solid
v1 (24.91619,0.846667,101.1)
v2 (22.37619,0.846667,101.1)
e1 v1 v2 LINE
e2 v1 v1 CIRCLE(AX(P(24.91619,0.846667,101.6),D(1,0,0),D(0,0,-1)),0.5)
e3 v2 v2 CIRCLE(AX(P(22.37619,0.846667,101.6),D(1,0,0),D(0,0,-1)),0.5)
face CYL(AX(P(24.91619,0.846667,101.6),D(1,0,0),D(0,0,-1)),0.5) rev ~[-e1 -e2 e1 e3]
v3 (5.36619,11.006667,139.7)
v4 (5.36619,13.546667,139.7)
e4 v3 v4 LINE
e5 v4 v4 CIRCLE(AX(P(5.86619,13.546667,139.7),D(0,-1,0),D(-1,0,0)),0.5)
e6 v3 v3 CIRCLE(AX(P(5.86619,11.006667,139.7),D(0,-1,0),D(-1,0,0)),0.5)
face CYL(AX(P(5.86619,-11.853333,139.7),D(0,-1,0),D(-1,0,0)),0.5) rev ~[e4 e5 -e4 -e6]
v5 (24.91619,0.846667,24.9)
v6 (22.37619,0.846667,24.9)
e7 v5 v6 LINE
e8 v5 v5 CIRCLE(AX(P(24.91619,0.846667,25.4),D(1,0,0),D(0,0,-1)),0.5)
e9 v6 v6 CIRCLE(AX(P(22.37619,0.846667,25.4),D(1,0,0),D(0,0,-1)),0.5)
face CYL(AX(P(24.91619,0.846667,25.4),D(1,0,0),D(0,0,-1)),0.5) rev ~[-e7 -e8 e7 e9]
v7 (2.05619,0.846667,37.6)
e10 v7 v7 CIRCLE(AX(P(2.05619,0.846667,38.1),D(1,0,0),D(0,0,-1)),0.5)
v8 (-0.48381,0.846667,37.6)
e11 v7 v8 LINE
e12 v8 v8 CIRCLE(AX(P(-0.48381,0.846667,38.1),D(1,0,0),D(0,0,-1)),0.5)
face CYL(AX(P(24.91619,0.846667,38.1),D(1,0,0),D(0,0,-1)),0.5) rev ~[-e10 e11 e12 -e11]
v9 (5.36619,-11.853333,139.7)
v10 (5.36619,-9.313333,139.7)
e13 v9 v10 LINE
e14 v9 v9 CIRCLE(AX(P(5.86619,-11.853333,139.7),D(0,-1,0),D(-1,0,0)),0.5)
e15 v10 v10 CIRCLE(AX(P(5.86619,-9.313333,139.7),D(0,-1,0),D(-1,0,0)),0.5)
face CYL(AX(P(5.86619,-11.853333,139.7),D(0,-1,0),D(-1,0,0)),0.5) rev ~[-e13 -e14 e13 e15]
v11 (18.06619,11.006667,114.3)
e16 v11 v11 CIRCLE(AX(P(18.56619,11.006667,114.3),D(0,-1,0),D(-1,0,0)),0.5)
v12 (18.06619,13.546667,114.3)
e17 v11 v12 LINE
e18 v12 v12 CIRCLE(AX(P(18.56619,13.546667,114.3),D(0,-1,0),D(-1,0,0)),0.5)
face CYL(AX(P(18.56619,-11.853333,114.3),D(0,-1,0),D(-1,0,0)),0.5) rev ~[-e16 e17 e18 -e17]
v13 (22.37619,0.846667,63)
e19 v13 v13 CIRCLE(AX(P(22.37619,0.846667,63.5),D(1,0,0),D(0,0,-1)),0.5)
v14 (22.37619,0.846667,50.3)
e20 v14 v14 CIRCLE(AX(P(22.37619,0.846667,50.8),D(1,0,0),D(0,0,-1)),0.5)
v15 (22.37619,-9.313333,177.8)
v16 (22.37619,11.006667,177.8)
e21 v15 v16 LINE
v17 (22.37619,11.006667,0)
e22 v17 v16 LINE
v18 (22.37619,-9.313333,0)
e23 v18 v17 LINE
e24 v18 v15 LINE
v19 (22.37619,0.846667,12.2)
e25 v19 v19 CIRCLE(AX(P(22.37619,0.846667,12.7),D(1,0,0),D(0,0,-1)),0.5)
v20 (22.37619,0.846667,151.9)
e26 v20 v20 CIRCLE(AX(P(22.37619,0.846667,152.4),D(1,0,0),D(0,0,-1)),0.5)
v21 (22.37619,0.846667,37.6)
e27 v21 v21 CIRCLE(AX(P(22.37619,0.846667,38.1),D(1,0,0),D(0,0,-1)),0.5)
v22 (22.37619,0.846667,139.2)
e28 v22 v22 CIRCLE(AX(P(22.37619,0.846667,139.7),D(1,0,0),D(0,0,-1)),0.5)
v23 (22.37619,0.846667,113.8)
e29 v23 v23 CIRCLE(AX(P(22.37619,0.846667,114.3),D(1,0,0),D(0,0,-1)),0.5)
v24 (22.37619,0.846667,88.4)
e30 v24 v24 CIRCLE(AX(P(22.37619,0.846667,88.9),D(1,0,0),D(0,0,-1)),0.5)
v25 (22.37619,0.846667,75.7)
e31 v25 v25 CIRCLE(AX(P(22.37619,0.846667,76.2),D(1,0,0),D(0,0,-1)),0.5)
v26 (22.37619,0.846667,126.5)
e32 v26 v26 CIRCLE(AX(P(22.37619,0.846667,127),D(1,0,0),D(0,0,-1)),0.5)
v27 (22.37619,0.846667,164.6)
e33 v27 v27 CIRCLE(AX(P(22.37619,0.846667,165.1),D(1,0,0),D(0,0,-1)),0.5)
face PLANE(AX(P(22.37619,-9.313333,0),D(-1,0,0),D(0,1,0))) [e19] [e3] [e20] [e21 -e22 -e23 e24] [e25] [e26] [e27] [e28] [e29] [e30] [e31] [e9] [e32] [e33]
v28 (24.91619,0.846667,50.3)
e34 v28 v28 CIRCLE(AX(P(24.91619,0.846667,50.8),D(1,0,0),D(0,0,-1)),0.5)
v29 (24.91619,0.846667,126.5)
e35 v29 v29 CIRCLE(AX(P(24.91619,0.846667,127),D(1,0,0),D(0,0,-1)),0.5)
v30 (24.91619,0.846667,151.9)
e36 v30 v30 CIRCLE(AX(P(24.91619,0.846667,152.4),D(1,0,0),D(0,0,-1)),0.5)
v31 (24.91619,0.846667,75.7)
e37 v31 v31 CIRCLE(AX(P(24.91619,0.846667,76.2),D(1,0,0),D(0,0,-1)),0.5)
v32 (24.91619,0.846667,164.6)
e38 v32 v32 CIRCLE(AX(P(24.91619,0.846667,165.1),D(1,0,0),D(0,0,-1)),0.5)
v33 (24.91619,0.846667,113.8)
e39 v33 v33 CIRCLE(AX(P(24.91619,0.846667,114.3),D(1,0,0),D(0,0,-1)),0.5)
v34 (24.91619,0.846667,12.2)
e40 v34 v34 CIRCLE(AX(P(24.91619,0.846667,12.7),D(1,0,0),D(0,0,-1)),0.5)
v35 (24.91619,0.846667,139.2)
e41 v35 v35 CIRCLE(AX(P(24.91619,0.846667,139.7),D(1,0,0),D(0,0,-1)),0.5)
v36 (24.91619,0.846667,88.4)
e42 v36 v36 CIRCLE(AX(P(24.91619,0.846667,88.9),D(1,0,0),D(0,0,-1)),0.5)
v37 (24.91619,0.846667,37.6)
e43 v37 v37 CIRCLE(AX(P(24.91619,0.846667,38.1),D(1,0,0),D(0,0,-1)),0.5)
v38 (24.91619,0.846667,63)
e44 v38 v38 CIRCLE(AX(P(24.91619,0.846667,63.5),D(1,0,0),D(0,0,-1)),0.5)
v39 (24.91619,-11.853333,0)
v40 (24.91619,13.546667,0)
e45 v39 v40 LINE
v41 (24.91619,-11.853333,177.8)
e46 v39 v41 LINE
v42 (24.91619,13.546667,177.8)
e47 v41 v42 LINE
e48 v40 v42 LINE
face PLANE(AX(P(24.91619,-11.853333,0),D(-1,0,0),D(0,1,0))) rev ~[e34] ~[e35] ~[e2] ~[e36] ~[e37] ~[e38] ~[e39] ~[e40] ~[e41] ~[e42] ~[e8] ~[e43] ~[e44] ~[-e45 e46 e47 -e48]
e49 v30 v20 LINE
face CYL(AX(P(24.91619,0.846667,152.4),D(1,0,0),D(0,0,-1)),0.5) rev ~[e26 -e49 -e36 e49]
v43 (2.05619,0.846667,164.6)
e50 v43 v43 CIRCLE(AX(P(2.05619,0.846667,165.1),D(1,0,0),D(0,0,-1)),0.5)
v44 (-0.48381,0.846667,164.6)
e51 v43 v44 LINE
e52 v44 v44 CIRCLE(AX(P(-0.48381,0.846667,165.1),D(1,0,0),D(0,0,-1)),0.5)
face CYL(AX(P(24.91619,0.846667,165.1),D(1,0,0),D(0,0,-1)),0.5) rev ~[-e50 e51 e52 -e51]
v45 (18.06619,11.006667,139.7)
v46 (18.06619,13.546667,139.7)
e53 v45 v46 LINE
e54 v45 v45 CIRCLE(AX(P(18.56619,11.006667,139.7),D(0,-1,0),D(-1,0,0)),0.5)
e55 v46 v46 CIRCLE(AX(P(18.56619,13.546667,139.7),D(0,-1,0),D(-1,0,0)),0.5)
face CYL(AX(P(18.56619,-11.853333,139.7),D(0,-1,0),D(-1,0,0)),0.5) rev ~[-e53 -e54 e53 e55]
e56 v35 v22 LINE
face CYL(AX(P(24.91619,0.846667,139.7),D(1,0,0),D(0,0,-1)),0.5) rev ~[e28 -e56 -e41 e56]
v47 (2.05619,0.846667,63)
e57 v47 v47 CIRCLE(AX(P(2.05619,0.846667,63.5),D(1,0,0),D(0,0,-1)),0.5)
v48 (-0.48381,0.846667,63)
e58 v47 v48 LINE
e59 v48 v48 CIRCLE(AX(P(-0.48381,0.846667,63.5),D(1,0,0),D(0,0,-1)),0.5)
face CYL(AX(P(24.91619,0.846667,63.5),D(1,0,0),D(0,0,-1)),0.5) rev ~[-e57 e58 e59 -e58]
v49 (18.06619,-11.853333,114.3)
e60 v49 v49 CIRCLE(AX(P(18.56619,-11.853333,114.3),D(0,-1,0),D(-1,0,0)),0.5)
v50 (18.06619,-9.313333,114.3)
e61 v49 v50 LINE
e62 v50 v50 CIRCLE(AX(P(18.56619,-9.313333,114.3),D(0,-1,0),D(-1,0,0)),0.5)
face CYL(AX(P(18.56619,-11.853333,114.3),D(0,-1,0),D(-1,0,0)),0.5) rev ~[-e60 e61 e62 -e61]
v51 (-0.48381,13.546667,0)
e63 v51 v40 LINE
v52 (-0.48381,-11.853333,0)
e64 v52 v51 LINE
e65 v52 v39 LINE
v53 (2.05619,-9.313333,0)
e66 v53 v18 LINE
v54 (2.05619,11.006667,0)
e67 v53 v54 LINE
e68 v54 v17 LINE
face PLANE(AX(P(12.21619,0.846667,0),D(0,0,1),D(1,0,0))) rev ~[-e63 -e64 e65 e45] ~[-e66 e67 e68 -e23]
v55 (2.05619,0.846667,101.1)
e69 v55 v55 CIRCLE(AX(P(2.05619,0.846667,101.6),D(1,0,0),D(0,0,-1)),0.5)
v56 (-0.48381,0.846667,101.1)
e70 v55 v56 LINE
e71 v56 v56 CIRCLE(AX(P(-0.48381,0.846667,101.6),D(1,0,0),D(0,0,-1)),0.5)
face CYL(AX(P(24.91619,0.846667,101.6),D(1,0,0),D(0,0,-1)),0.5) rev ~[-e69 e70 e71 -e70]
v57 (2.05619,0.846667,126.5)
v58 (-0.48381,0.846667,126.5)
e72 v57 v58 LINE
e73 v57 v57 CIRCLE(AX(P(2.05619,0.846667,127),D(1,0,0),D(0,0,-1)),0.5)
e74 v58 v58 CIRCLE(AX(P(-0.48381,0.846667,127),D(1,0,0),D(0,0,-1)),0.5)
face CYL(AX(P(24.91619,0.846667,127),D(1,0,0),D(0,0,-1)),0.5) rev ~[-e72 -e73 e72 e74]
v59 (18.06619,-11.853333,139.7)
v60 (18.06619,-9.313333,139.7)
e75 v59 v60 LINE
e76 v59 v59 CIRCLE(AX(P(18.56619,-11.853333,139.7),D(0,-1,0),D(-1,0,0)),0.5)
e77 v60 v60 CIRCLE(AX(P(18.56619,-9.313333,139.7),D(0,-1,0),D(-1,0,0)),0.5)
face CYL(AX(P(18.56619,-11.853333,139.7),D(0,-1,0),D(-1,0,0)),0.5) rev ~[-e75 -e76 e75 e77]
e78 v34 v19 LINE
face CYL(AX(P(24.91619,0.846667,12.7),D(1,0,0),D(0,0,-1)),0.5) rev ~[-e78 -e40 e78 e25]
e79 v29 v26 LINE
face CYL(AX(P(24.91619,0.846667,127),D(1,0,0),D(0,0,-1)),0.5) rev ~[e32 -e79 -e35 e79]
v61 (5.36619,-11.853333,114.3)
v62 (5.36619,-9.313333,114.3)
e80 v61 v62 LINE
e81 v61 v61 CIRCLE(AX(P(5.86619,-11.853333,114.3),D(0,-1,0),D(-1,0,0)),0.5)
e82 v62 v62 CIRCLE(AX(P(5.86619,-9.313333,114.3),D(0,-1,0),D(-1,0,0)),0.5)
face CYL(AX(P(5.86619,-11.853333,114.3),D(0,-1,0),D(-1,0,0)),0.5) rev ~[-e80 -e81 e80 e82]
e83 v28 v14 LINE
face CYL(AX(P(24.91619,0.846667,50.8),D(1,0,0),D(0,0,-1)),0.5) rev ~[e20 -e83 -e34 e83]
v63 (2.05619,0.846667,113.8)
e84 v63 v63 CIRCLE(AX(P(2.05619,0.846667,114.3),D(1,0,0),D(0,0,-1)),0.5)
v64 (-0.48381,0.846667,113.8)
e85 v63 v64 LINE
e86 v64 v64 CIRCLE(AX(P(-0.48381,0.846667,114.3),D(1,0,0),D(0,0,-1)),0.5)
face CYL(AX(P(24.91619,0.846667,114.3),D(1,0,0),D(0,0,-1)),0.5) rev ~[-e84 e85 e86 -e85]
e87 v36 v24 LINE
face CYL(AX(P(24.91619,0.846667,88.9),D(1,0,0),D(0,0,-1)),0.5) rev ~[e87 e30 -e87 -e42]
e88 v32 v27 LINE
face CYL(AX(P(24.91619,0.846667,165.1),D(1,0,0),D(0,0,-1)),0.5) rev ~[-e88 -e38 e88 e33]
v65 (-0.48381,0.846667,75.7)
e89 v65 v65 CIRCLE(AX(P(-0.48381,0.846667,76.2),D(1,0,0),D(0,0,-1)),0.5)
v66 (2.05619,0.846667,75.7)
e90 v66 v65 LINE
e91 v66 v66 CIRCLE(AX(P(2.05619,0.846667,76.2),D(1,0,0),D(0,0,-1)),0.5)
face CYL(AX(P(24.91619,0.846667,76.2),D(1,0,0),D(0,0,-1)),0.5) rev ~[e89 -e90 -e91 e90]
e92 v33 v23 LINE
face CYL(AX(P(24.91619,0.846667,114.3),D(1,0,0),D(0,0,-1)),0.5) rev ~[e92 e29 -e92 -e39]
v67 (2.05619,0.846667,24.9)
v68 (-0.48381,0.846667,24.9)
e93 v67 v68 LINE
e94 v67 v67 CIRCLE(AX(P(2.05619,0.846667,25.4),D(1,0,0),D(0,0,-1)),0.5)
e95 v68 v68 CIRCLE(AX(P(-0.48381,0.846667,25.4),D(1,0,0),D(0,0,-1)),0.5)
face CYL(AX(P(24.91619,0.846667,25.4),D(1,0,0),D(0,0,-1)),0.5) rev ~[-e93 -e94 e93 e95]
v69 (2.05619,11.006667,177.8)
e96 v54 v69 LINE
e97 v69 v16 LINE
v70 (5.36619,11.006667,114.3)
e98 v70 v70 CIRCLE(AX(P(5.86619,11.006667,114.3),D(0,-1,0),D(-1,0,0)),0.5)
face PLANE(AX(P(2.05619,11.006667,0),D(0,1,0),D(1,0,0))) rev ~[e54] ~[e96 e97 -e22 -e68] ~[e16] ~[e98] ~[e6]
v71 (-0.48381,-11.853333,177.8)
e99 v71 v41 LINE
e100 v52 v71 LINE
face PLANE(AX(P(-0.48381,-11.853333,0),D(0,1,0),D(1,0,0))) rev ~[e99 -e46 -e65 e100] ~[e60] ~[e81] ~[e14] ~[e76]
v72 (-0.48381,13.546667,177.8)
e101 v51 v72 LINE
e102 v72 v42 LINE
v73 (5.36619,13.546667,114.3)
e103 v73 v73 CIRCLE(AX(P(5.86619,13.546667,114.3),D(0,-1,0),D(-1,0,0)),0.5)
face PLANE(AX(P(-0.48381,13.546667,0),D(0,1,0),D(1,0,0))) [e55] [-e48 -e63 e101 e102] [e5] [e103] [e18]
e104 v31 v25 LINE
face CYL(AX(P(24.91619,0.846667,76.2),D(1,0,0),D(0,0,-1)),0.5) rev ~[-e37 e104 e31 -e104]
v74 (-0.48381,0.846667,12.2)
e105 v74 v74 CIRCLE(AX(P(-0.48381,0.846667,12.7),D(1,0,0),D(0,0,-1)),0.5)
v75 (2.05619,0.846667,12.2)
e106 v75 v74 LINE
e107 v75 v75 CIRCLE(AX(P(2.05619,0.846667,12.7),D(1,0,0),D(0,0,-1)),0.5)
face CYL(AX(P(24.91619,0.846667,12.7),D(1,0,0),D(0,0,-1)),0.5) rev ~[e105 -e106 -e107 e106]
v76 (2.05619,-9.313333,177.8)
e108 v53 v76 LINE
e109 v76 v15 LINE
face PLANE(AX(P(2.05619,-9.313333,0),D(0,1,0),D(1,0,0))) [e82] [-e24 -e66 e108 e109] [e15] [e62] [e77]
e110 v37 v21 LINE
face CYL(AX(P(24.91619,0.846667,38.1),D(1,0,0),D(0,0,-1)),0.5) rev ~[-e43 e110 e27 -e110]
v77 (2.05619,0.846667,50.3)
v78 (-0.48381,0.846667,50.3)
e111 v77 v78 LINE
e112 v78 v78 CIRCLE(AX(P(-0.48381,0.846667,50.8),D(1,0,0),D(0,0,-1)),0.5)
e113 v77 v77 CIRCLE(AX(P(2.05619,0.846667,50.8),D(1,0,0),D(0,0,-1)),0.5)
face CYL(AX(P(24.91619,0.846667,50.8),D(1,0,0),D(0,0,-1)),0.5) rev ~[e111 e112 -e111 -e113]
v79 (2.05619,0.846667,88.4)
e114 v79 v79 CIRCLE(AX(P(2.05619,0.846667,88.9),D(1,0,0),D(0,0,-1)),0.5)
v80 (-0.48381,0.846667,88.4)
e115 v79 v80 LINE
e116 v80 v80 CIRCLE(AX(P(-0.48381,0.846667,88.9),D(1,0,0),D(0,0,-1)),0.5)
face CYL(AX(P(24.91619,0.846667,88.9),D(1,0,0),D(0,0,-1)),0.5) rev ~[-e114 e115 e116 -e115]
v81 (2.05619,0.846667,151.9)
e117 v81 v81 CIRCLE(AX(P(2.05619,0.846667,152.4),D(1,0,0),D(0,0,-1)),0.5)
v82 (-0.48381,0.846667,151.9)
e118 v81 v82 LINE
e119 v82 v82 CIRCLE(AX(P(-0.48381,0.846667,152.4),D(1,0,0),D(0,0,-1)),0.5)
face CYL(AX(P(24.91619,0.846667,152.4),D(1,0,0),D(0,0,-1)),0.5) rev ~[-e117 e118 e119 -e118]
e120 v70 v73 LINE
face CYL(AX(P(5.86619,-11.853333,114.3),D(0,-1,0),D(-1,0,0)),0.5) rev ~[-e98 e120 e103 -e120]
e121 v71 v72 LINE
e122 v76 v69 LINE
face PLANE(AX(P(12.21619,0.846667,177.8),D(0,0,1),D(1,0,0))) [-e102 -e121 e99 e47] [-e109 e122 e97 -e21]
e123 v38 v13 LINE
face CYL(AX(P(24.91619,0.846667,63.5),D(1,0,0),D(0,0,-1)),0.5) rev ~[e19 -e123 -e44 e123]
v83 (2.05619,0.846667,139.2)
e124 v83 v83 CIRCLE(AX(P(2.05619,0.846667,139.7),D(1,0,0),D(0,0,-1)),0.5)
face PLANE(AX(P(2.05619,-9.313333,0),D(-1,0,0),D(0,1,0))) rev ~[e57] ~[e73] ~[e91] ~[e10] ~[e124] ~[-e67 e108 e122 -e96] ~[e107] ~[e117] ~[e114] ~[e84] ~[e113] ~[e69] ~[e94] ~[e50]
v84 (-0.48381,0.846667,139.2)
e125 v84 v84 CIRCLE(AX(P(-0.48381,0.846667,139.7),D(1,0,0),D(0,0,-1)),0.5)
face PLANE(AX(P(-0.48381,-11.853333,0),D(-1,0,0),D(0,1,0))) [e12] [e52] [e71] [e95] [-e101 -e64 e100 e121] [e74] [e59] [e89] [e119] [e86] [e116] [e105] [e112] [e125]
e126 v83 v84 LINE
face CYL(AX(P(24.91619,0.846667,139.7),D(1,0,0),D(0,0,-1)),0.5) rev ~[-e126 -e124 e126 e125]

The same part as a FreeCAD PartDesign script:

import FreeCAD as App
import Part
import Sketcher
Q = App.Units.Quantity


def add_polygon(sketch, points):
    """Adds a closed chain of lines whose ends are joined by coincident constraints."""
    first, n = sketch.GeometryCount, len(points)
    for a, b in zip(points, points[1:] + points[:1]):
        sketch.addGeometry(Part.LineSegment(App.Vector(*a, 0), App.Vector(*b, 0)), False)
    for i in range(n):
        sketch.addConstraint(Sketcher.Constraint("Coincident", first + i, 2, first + (i + 1) % n, 1))

doc = App.newDocument("Part")
params = doc.addObject("Spreadsheet::Sheet", "Params")
for row, (alias, value) in enumerate([
    ("sketch1_width", "1 in"),
    ("sketch1_width2", "0.8 in"),
    ("pad1_length", "7 in"),
], start=1):
    params.set(f"A{row}", alias)
    params.set(f"B{row}", "=" + value)
    params.setAlias(f"B{row}", alias)

body = doc.addObject("PartDesign::Body", "Body")

# Sketch on XY plane
sketch1 = body.newObject("Sketcher::SketchObject", "Sketch")
sketch1.AttachmentSupport = (doc.getObject("XY_Plane"), [""])
sketch1.MapMode = "FlatFace"
add_polygon(sketch1, [(-0.48381, 13.546667), (-0.48381, -11.853333), (24.91619, -11.853333), (24.91619, 13.546667)])  # lines 0-3
add_polygon(sketch1, [(22.37619, -9.313333), (2.05619, -9.313333), (2.05619, 11.006667), (22.37619, 11.006667)])  # lines 4-7
sketch1.addConstraint([
    Sketcher.Constraint("Vertical", 0),
    Sketcher.Constraint("Horizontal", 1),
    Sketcher.Constraint("Vertical", 2),
    Sketcher.Constraint("Horizontal", 3),
    Sketcher.Constraint("Horizontal", 4),
    Sketcher.Constraint("Vertical", 5),
    Sketcher.Constraint("Horizontal", 6),
    Sketcher.Constraint("Vertical", 7),
    Sketcher.Constraint("Equal", 3, 0),
    Sketcher.Constraint("Equal", 6, 5),
    Sketcher.Constraint("DistanceX", 1, 1, 1, 2, Q("1 in")),
    Sketcher.Constraint("DistanceX", 4, 2, 4, 1, Q("0.8 in")),
    Sketcher.Constraint("DistanceX", 0, 2, 4, 2, Q("0.1 in")),
    Sketcher.Constraint("DistanceY", 0, 2, 4, 2, Q("0.1 in")),
    Sketcher.Constraint("DistanceX", 0, 2, -1, 1, 0.48381),
    Sketcher.Constraint("DistanceY", 0, 2, -1, 1, 11.853333),
])
sketch1.setExpression("Constraints[18]", "Params.sketch1_width")
sketch1.setExpression("Constraints[19]", "Params.sketch1_width2")
pad1 = body.newObject("PartDesign::Pad", "Pad")
pad1.Profile = sketch1
pad1.setExpression("Length", "Params.pad1_length")

# Sketch on YZ plane
sketch2 = body.newObject("Sketcher::SketchObject", "Sketch001")
sketch2.AttachmentSupport = (doc.getObject("YZ_Plane"), [""])
sketch2.MapMode = "FlatFace"
sketch2.AttachmentOffset = App.Placement(App.Vector(0, 0, 24.91619), App.Rotation())
sketch2.addGeometry([
    Part.Circle(App.Vector(0.846667, 165.1, 0), App.Vector(0, 0, 1), 0.5),  # 0
    Part.Circle(App.Vector(0.846667, 152.4, 0), App.Vector(0, 0, 1), 0.5),  # 1
    Part.Circle(App.Vector(0.846667, 139.7, 0), App.Vector(0, 0, 1), 0.5),  # 2
    Part.Circle(App.Vector(0.846667, 127, 0), App.Vector(0, 0, 1), 0.5),  # 3
    Part.Circle(App.Vector(0.846667, 114.3, 0), App.Vector(0, 0, 1), 0.5),  # 4
    Part.Circle(App.Vector(0.846667, 101.6, 0), App.Vector(0, 0, 1), 0.5),  # 5
    Part.Circle(App.Vector(0.846667, 88.9, 0), App.Vector(0, 0, 1), 0.5),  # 6
    Part.Circle(App.Vector(0.846667, 76.2, 0), App.Vector(0, 0, 1), 0.5),  # 7
    Part.Circle(App.Vector(0.846667, 63.5, 0), App.Vector(0, 0, 1), 0.5),  # 8
    Part.Circle(App.Vector(0.846667, 50.8, 0), App.Vector(0, 0, 1), 0.5),  # 9
    Part.Circle(App.Vector(0.846667, 38.1, 0), App.Vector(0, 0, 1), 0.5),  # 10
    Part.Circle(App.Vector(0.846667, 25.4, 0), App.Vector(0, 0, 1), 0.5),  # 11
    Part.Circle(App.Vector(0.846667, 12.7, 0), App.Vector(0, 0, 1), 0.5),  # 12
], False)
sketch2.addConstraint([
    Sketcher.Constraint("Equal", 0, 1),
    Sketcher.Constraint("Equal", 1, 2),
    Sketcher.Constraint("Equal", 2, 3),
    Sketcher.Constraint("Equal", 3, 4),
    Sketcher.Constraint("Equal", 4, 5),
    Sketcher.Constraint("Equal", 5, 6),
    Sketcher.Constraint("Equal", 6, 7),
    Sketcher.Constraint("Equal", 7, 8),
    Sketcher.Constraint("Equal", 8, 9),
    Sketcher.Constraint("Equal", 9, 10),
    Sketcher.Constraint("Equal", 10, 11),
    Sketcher.Constraint("Equal", 11, 12),
    Sketcher.Constraint("Vertical", 0, 3, 1, 3),
    Sketcher.Constraint("Vertical", 1, 3, 2, 3),
    Sketcher.Constraint("Vertical", 2, 3, 3, 3),
    Sketcher.Constraint("Vertical", 3, 3, 4, 3),
    Sketcher.Constraint("Vertical", 4, 3, 5, 3),
    Sketcher.Constraint("Vertical", 5, 3, 6, 3),
    Sketcher.Constraint("Vertical", 6, 3, 7, 3),
    Sketcher.Constraint("Vertical", 7, 3, 8, 3),
    Sketcher.Constraint("Vertical", 8, 3, 9, 3),
    Sketcher.Constraint("Vertical", 9, 3, 10, 3),
    Sketcher.Constraint("Vertical", 10, 3, 11, 3),
    Sketcher.Constraint("Vertical", 11, 3, 12, 3),
    Sketcher.Constraint("DistanceY", -1, 1, 1, 3, Q("6 in")),
    Sketcher.Constraint("DistanceY", -1, 1, 3, 3, Q("5 in")),
    Sketcher.Constraint("DistanceY", -1, 1, 5, 3, Q("4 in")),
    Sketcher.Constraint("DistanceY", -1, 1, 7, 3, Q("3 in")),
    Sketcher.Constraint("DistanceY", -1, 1, 9, 3, Q("2 in")),
    Sketcher.Constraint("DistanceY", -1, 1, 11, 3, Q("1 in")),
    Sketcher.Constraint("DistanceY", 2, 3, 0, 3, Q("1 in")),
    Sketcher.Constraint("DistanceY", 4, 3, 2, 3, Q("1 in")),
    Sketcher.Constraint("DistanceY", 6, 3, 4, 3, Q("1 in")),
    Sketcher.Constraint("DistanceY", 8, 3, 6, 3, Q("1 in")),
    Sketcher.Constraint("DistanceY", 10, 3, 8, 3, Q("1 in")),
    Sketcher.Constraint("DistanceY", 12, 3, 10, 3, Q("1 in")),
    Sketcher.Constraint("DistanceY", -1, 1, 0, 3, Q("6.5 in")),
    Sketcher.Constraint("Diameter", 0, 1.0),
    Sketcher.Constraint("DistanceX", -1, 1, 0, 3, 0.846667),
])
pocket1 = body.newObject("PartDesign::Pocket", "Pocket")
pocket1.Profile = sketch2
pocket1.Type = "ThroughAll"
pocket1.Midplane = True

# Sketch on XZ plane
sketch3 = body.newObject("Sketcher::SketchObject", "Sketch002")
sketch3.AttachmentSupport = (doc.getObject("XZ_Plane"), [""])
sketch3.MapMode = "FlatFace"
sketch3.AttachmentOffset = App.Placement(App.Vector(0, 0, 11.853333), App.Rotation())
sketch3.addGeometry([
    Part.Circle(App.Vector(5.86619, 139.7, 0), App.Vector(0, 0, 1), 0.5),
    Part.Circle(App.Vector(18.56619, 139.7, 0), App.Vector(0, 0, 1), 0.5),
    Part.Circle(App.Vector(5.86619, 114.3, 0), App.Vector(0, 0, 1), 0.5),
    Part.Circle(App.Vector(18.56619, 114.3, 0), App.Vector(0, 0, 1), 0.5),
], False)
sketch3.addConstraint([
    Sketcher.Constraint("Equal", 0, 1),
    Sketcher.Constraint("Equal", 1, 2),
    Sketcher.Constraint("Equal", 2, 3),
    Sketcher.Constraint("Horizontal", 0, 3, 1, 3),
    Sketcher.Constraint("Horizontal", 2, 3, 3, 3),
    Sketcher.Constraint("Vertical", 0, 3, 2, 3),
    Sketcher.Constraint("Vertical", 1, 3, 3, 3),
    Sketcher.Constraint("DistanceY", 2, 3, 0, 3, Q("1 in")),
    Sketcher.Constraint("DistanceY", -1, 1, 0, 3, Q("5.5 in")),
    Sketcher.Constraint("DistanceX", 0, 3, 1, 3, Q("0.5 in")),
    Sketcher.Constraint("Diameter", 0, 1.0),
    Sketcher.Constraint("DistanceX", -1, 1, 0, 3, 5.86619),
])
pocket2 = body.newObject("PartDesign::Pocket", "Pocket001")
pocket2.Profile = sketch3
pocket2.Type = "ThroughAll"

doc.recompute()
